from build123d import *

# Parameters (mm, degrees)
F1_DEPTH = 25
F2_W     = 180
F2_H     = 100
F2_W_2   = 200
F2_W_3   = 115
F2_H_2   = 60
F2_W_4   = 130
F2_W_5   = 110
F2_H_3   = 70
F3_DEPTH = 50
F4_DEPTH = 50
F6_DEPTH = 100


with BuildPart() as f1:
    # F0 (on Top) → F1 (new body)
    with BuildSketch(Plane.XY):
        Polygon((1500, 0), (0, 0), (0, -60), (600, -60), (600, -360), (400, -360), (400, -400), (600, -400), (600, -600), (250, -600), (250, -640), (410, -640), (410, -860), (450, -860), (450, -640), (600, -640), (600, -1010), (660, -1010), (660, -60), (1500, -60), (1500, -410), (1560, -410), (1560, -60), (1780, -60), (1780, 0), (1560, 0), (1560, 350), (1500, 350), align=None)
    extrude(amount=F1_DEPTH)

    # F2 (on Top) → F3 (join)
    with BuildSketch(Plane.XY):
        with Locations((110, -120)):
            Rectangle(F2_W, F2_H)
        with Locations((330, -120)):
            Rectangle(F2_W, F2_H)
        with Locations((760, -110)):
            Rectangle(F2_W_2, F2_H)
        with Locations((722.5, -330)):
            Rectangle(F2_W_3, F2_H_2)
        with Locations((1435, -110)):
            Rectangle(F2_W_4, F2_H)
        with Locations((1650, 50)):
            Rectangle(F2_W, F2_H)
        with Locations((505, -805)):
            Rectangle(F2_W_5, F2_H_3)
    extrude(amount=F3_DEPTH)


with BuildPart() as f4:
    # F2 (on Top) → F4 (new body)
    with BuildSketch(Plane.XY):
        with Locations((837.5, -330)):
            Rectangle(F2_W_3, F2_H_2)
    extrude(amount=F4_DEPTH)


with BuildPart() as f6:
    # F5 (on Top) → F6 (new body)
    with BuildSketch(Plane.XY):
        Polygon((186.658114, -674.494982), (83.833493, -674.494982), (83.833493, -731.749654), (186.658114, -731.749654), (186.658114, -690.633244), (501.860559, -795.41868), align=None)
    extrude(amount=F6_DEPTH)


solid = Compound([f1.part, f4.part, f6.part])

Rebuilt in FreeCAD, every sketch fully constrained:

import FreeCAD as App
import Part
import Sketcher

V = App.Vector
Q = App.Units.Quantity

doc = App.newDocument("Part")
body = doc.addObject("PartDesign::Body", "Body")
body.AllowCompound = True

# Sketch on XY plane
sketch1 = body.newObject("Sketcher::SketchObject", "Sketch")
sketch1.AttachmentSupport = (doc.getObject("XY_Plane"), [""])
sketch1.MapMode = "FlatFace"
sketch1.addGeometry([
    Part.LineSegment(V(1500, 0, 0), V(0, 0, 0)),  # 0
    Part.LineSegment(V(0, 0, 0), V(0, -60, 0)),  # 1
    Part.LineSegment(V(0, -60, 0), V(600, -60, 0)),  # 2
    Part.LineSegment(V(600, -60, 0), V(600, -360, 0)),  # 3
    Part.LineSegment(V(600, -360, 0), V(400, -360, 0)),  # 4
    Part.LineSegment(V(400, -360, 0), V(400, -400, 0)),  # 5
    Part.LineSegment(V(400, -400, 0), V(600, -400, 0)),  # 6
    Part.LineSegment(V(600, -400, 0), V(600, -600, 0)),  # 7
    Part.LineSegment(V(600, -600, 0), V(250, -600, 0)),  # 8
    Part.LineSegment(V(250, -600, 0), V(250, -640, 0)),  # 9
    Part.LineSegment(V(250, -640, 0), V(410, -640, 0)),  # 10
    Part.LineSegment(V(410, -640, 0), V(410, -860, 0)),  # 11
    Part.LineSegment(V(410, -860, 0), V(450, -860, 0)),  # 12
    Part.LineSegment(V(450, -860, 0), V(450, -640, 0)),  # 13
    Part.LineSegment(V(450, -640, 0), V(600, -640, 0)),  # 14
    Part.LineSegment(V(600, -640, 0), V(600, -1010, 0)),  # 15
    Part.LineSegment(V(600, -1010, 0), V(660, -1010, 0)),  # 16
    Part.LineSegment(V(660, -1010, 0), V(660, -60, 0)),  # 17
    Part.LineSegment(V(660, -60, 0), V(1500, -60, 0)),  # 18
    Part.LineSegment(V(1500, -60, 0), V(1500, -410, 0)),  # 19
    Part.LineSegment(V(1500, -410, 0), V(1560, -410, 0)),  # 20
    Part.LineSegment(V(1560, -410, 0), V(1560, -60, 0)),  # 21
    Part.LineSegment(V(1560, -60, 0), V(1780, -60, 0)),  # 22
    Part.LineSegment(V(1780, -60, 0), V(1780, 0, 0)),  # 23
    Part.LineSegment(V(1780, 0, 0), V(1560, 0, 0)),  # 24
    Part.LineSegment(V(1560, 0, 0), V(1560, 350, 0)),  # 25
    Part.LineSegment(V(1560, 350, 0), V(1500, 350, 0)),  # 26
    Part.LineSegment(V(1500, 350, 0), V(1500, 0, 0)),  # 27
], False)
sketch1.addConstraint([
    Sketcher.Constraint("Coincident", 0, 2, 1, 1),
    Sketcher.Constraint("Coincident", 1, 2, 2, 1),
    Sketcher.Constraint("Coincident", 2, 2, 3, 1),
    Sketcher.Constraint("Coincident", 3, 2, 4, 1),
    Sketcher.Constraint("Coincident", 4, 2, 5, 1),
    Sketcher.Constraint("Coincident", 5, 2, 6, 1),
    Sketcher.Constraint("Coincident", 6, 2, 7, 1),
    Sketcher.Constraint("Coincident", 7, 2, 8, 1),
    Sketcher.Constraint("Coincident", 8, 2, 9, 1),
    Sketcher.Constraint("Coincident", 9, 2, 10, 1),
    Sketcher.Constraint("Coincident", 10, 2, 11, 1),
    Sketcher.Constraint("Coincident", 11, 2, 12, 1),
    Sketcher.Constraint("Coincident", 12, 2, 13, 1),
    Sketcher.Constraint("Coincident", 13, 2, 14, 1),
    Sketcher.Constraint("Coincident", 14, 2, 15, 1),
    Sketcher.Constraint("Coincident", 15, 2, 16, 1),
    Sketcher.Constraint("Coincident", 16, 2, 17, 1),
    Sketcher.Constraint("Coincident", 17, 2, 18, 1),
    Sketcher.Constraint("Coincident", 18, 2, 19, 1),
    Sketcher.Constraint("Coincident", 19, 2, 20, 1),
    Sketcher.Constraint("Coincident", 20, 2, 21, 1),
    Sketcher.Constraint("Coincident", 21, 2, 22, 1),
    Sketcher.Constraint("Coincident", 22, 2, 23, 1),
    Sketcher.Constraint("Coincident", 23, 2, 24, 1),
    Sketcher.Constraint("Coincident", 24, 2, 25, 1),
    Sketcher.Constraint("Coincident", 25, 2, 26, 1),
    Sketcher.Constraint("Coincident", 26, 2, 27, 1),
    Sketcher.Constraint("Coincident", 27, 2, 0, 1),
    Sketcher.Constraint("Horizontal", 0),
    Sketcher.Constraint("Vertical", 1),
    Sketcher.Constraint("Horizontal", 2),
    Sketcher.Constraint("Vertical", 3),
    Sketcher.Constraint("Horizontal", 4),
    Sketcher.Constraint("Vertical", 5),
    Sketcher.Constraint("Horizontal", 6),
    Sketcher.Constraint("Vertical", 7),
    Sketcher.Constraint("Horizontal", 8),
    Sketcher.Constraint("Vertical", 9),
    Sketcher.Constraint("Horizontal", 10),
    Sketcher.Constraint("Vertical", 11),
    Sketcher.Constraint("Horizontal", 12),
    Sketcher.Constraint("Vertical", 13),
    Sketcher.Constraint("Horizontal", 14),
    Sketcher.Constraint("Vertical", 15),
    Sketcher.Constraint("Horizontal", 16),
    Sketcher.Constraint("Vertical", 17),
    Sketcher.Constraint("Horizontal", 18),
    Sketcher.Constraint("Vertical", 19),
    Sketcher.Constraint("Horizontal", 20),
    Sketcher.Constraint("Vertical", 21),
    Sketcher.Constraint("Horizontal", 22),
    Sketcher.Constraint("Vertical", 23),
    Sketcher.Constraint("Horizontal", 24),
    Sketcher.Constraint("Vertical", 25),
    Sketcher.Constraint("Horizontal", 26),
    Sketcher.Constraint("Vertical", 27),
    Sketcher.Constraint("Coincident", 0, 2, -1, 1),
    Sketcher.Constraint("PointOnObject", 23, 2, -1),
    Sketcher.Constraint("Horizontal", 10, 2, 13, 2),
    Sketcher.Constraint("Horizontal", 2, 2, 17, 2),
    Sketcher.Constraint("Horizontal", 18, 2, 21, 2),
    Sketcher.Constraint("Vertical", 3, 2, 6, 2),
    Sketcher.Constraint("Vertical", 7, 2, 14, 2),
    Sketcher.Constraint("Vertical", 21, 2, 24, 2),
    Sketcher.Constraint("Vertical", 19, 2, 26, 2),
    Sketcher.Constraint("Equal", 16, 20),
    Sketcher.Constraint("Equal", 26, 1),
    Sketcher.Constraint("Equal", 12, 5),
    Sketcher.Constraint("Equal", 6, 7),
    Sketcher.Constraint("Equal", 5, 9),
    Sketcher.Constraint("Equal", 24, 11),
    Sketcher.Constraint("Equal", 8, 19),
    Sketcher.Constraint("Equal", 21, 25),
    Sketcher.Constraint("DistanceX", 0, 2, 0, 1, Q("1500 mm")),
    Sketcher.Constraint("DistanceX", 2, 1, 2, 2, Q("600 mm")),
    Sketcher.Constraint("DistanceX", 4, 2, 4, 1, Q("200 mm")),
    Sketcher.Constraint("DistanceX", 8, 2, 8, 1, Q("350 mm")),
    Sketcher.Constraint("DistanceX", 10, 1, 10, 2, Q("160 mm")),
    Sketcher.Constraint("DistanceX", 12, 1, 12, 2, Q("40 mm")),
    Sketcher.Constraint("DistanceX", 16, 1, 16, 2, Q("60 mm")),
    Sketcher.Constraint("DistanceX", 22, 1, 22, 2, Q("220 mm")),
    Sketcher.Constraint("DistanceY", 3, 2, 3, 1, Q("300 mm")),
    Sketcher.Constraint("DistanceY", 15, 2, 15, 1, Q("370 mm")),
])
pad1 = body.newObject("PartDesign::Pad", "Pad")
pad1.Profile = sketch1
pad1.Length = 25

# Sketch on XY plane
sketch2 = body.newObject("Sketcher::SketchObject", "Sketch001")
sketch2.AttachmentSupport = (doc.getObject("XY_Plane"), [""])
sketch2.MapMode = "FlatFace"
sketch2.addGeometry([
    Part.LineSegment(V(20, -70, 0), V(20, -170, 0)),  # 0
    Part.LineSegment(V(20, -170, 0), V(200, -170, 0)),  # 1
    Part.LineSegment(V(200, -170, 0), V(200, -70, 0)),  # 2
    Part.LineSegment(V(200, -70, 0), V(20, -70, 0)),  # 3
    Part.LineSegment(V(240, -70, 0), V(240, -170, 0)),  # 4
    Part.LineSegment(V(240, -170, 0), V(420, -170, 0)),  # 5
    Part.LineSegment(V(420, -170, 0), V(420, -70, 0)),  # 6
    Part.LineSegment(V(420, -70, 0), V(240, -70, 0)),  # 7
    Part.LineSegment(V(660, -60, 0), V(660, -160, 0)),  # 8
    Part.LineSegment(V(660, -160, 0), V(860, -160, 0)),  # 9
    Part.LineSegment(V(860, -160, 0), V(860, -60, 0)),  # 10
    Part.LineSegment(V(860, -60, 0), V(660, -60, 0)),  # 11
    Part.LineSegment(V(665, -300, 0), V(665, -360, 0)),  # 12
    Part.LineSegment(V(665, -360, 0), V(780, -360, 0)),  # 13
    Part.LineSegment(V(780, -360, 0), V(780, -300, 0)),  # 14
    Part.LineSegment(V(780, -300, 0), V(665, -300, 0)),  # 15
    Part.LineSegment(V(1370, -60, 0), V(1370, -160, 0)),  # 16
    Part.LineSegment(V(1370, -160, 0), V(1500, -160, 0)),  # 17
    Part.LineSegment(V(1500, -160, 0), V(1500, -60, 0)),  # 18
    Part.LineSegment(V(1500, -60, 0), V(1370, -60, 0)),  # 19
    Part.LineSegment(V(1560, 100, 0), V(1560, 0, 0)),  # 20
    Part.LineSegment(V(1560, 0, 0), V(1740, 0, 0)),  # 21
    Part.LineSegment(V(1740, 0, 0), V(1740, 100, 0)),  # 22
    Part.LineSegment(V(1740, 100, 0), V(1560, 100, 0)),  # 23
    Part.LineSegment(V(450, -770, 0), V(450, -840, 0)),  # 24
    Part.LineSegment(V(450, -840, 0), V(560, -840, 0)),  # 25
    Part.LineSegment(V(560, -840, 0), V(560, -770, 0)),  # 26
    Part.LineSegment(V(560, -770, 0), V(450, -770, 0)),  # 27
], False)
sketch2.addConstraint([
    Sketcher.Constraint("Coincident", 0, 2, 1, 1),
    Sketcher.Constraint("Coincident", 1, 2, 2, 1),
    Sketcher.Constraint("Coincident", 2, 2, 3, 1),
    Sketcher.Constraint("Coincident", 3, 2, 0, 1),
    Sketcher.Constraint("Coincident", 4, 2, 5, 1),
    Sketcher.Constraint("Coincident", 5, 2, 6, 1),
    Sketcher.Constraint("Coincident", 6, 2, 7, 1),
    Sketcher.Constraint("Coincident", 7, 2, 4, 1),
    Sketcher.Constraint("Coincident", 8, 2, 9, 1),
    Sketcher.Constraint("Coincident", 9, 2, 10, 1),
    Sketcher.Constraint("Coincident", 10, 2, 11, 1),
    Sketcher.Constraint("Coincident", 11, 2, 8, 1),
    Sketcher.Constraint("Coincident", 12, 2, 13, 1),
    Sketcher.Constraint("Coincident", 13, 2, 14, 1),
    Sketcher.Constraint("Coincident", 14, 2, 15, 1),
    Sketcher.Constraint("Coincident", 15, 2, 12, 1),
    Sketcher.Constraint("Coincident", 16, 2, 17, 1),
    Sketcher.Constraint("Coincident", 17, 2, 18, 1),
    Sketcher.Constraint("Coincident", 18, 2, 19, 1),
    Sketcher.Constraint("Coincident", 19, 2, 16, 1),
    Sketcher.Constraint("Coincident", 20, 2, 21, 1),
    Sketcher.Constraint("Coincident", 21, 2, 22, 1),
    Sketcher.Constraint("Coincident", 22, 2, 23, 1),
    Sketcher.Constraint("Coincident", 23, 2, 20, 1),
    Sketcher.Constraint("Coincident", 24, 2, 25, 1),
    Sketcher.Constraint("Coincident", 25, 2, 26, 1),
    Sketcher.Constraint("Coincident", 26, 2, 27, 1),
    Sketcher.Constraint("Coincident", 27, 2, 24, 1),
    Sketcher.Constraint("Vertical", 0),
    Sketcher.Constraint("Horizontal", 1),
    Sketcher.Constraint("Vertical", 2),
    Sketcher.Constraint("Horizontal", 3),
    Sketcher.Constraint("Vertical", 4),
    Sketcher.Constraint("Horizontal", 5),
    Sketcher.Constraint("Vertical", 6),
    Sketcher.Constraint("Horizontal", 7),
    Sketcher.Constraint("Vertical", 8),
    Sketcher.Constraint("Horizontal", 9),
    Sketcher.Constraint("Vertical", 10),
    Sketcher.Constraint("Horizontal", 11),
    Sketcher.Constraint("Vertical", 12),
    Sketcher.Constraint("Horizontal", 13),
    Sketcher.Constraint("Vertical", 14),
    Sketcher.Constraint("Horizontal", 15),
    Sketcher.Constraint("Vertical", 16),
    Sketcher.Constraint("Horizontal", 17),
    Sketcher.Constraint("Vertical", 18),
    Sketcher.Constraint("Horizontal", 19),
    Sketcher.Constraint("Vertical", 20),
    Sketcher.Constraint("Horizontal", 21),
    Sketcher.Constraint("Vertical", 22),
    Sketcher.Constraint("Horizontal", 23),
    Sketcher.Constraint("Vertical", 24),
    Sketcher.Constraint("Horizontal", 25),
    Sketcher.Constraint("Vertical", 26),
    Sketcher.Constraint("Horizontal", 27),
    Sketcher.Constraint("PointOnObject", 20, 2, -1),
    Sketcher.Constraint("Horizontal", 1, 2, 4, 2),
    Sketcher.Constraint("Horizontal", 3, 2, 6, 2),
    Sketcher.Constraint("Horizontal", 9, 2, 16, 2),
    Sketcher.Constraint("Horizontal", 11, 2, 18, 2),
    Sketcher.Constraint("Equal", 3, 5),
    Sketcher.Constraint("Equal", 7, 21),
    Sketcher.Constraint("Equal", 6, 8),
    Sketcher.Constraint("Equal", 18, 20),
    Sketcher.Constraint("DistanceX", 1, 1, 1, 2, Q("180 mm")),
    Sketcher.Constraint("DistanceX", 9, 1, 9, 2, Q("200 mm")),
    Sketcher.Constraint("DistanceX", 13, 1, 13, 2, Q("115 mm")),
    Sketcher.Constraint("DistanceX", 17, 1, 17, 2, Q("130 mm")),
    Sketcher.Constraint("DistanceX", 25, 1, 25, 2, Q("110 mm")),
    Sketcher.Constraint("DistanceY", 0, 2, 0, 1, Q("100 mm")),
    Sketcher.Constraint("DistanceY", 12, 2, 12, 1, Q("60 mm")),
    Sketcher.Constraint("DistanceY", 24, 2, 24, 1, Q("70 mm")),
    Sketcher.Constraint("DistanceX", -1, 1, 0, 2, Q("20 mm")),
    Sketcher.Constraint("DistanceY", 0, 2, -1, 1, Q("170 mm")),
    Sketcher.Constraint("DistanceX", -1, 1, 4, 2, Q("240 mm")),
    Sketcher.Constraint("DistanceX", -1, 1, 8, 2, Q("660 mm")),
    Sketcher.Constraint("DistanceY", 8, 2, -1, 1, Q("160 mm")),
    Sketcher.Constraint("DistanceX", -1, 1, 12, 2, Q("665 mm")),
    Sketcher.Constraint("DistanceY", 12, 2, -1, 1, Q("360 mm")),
    Sketcher.Constraint("DistanceX", -1, 1, 16, 2, Q("1370 mm")),
    Sketcher.Constraint("DistanceX", -1, 1, 20, 2, Q("1560 mm")),
    Sketcher.Constraint("DistanceX", -1, 1, 24, 2, Q("450 mm")),
    Sketcher.Constraint("DistanceY", 24, 2, -1, 1, Q("840 mm")),
])
pad2 = body.newObject("PartDesign::Pad", "Pad001")
pad2.Profile = sketch2
pad2.Length = 50
body2 = doc.addObject("PartDesign::Body", "Body001")

# Sketch on XY plane
sketch3 = body2.newObject("Sketcher::SketchObject", "Sketch002")
sketch3.AttachmentSupport = (doc.getObject("XY_Plane001"), [""])
sketch3.MapMode = "FlatFace"
sketch3.addGeometry([
    Part.LineSegment(V(780, -300, 0), V(780, -360, 0)),
    Part.LineSegment(V(780, -360, 0), V(895, -360, 0)),
    Part.LineSegment(V(895, -360, 0), V(895, -300, 0)),
    Part.LineSegment(V(895, -300, 0), V(780, -300, 0)),
], False)
sketch3.addConstraint([
    Sketcher.Constraint("Coincident", 0, 2, 1, 1),
    Sketcher.Constraint("Coincident", 1, 2, 2, 1),
    Sketcher.Constraint("Coincident", 2, 2, 3, 1),
    Sketcher.Constraint("Coincident", 3, 2, 0, 1),
    Sketcher.Constraint("Vertical", 0),
    Sketcher.Constraint("Horizontal", 1),
    Sketcher.Constraint("Vertical", 2),
    Sketcher.Constraint("Horizontal", 3),
    Sketcher.Constraint("DistanceX", 1, 1, 1, 2, Q("115 mm")),
    Sketcher.Constraint("DistanceY", 0, 2, 0, 1, Q("60 mm")),
    Sketcher.Constraint("DistanceX", -1, 1, 0, 2, Q("780 mm")),
    Sketcher.Constraint("DistanceY", 0, 2, -1, 1, Q("360 mm")),
])
pad3 = body2.newObject("PartDesign::Pad", "Pad002")
pad3.Profile = sketch3
pad3.Length = 50
body3 = doc.addObject("PartDesign::Body", "Body002")

# Sketch on XY plane
sketch4 = body3.newObject("Sketcher::SketchObject", "Sketch003")
sketch4.AttachmentSupport = (doc.getObject("XY_Plane002"), [""])
sketch4.MapMode = "FlatFace"
sketch4.addGeometry([
    Part.LineSegment(V(187, -674, 0), V(84, -674, 0)),  # 0
    Part.LineSegment(V(84, -674, 0), V(84, -732, 0)),  # 1
    Part.LineSegment(V(84, -732, 0), V(187, -732, 0)),  # 2
    Part.LineSegment(V(187, -732, 0), V(187, -691, 0)),  # 3
    Part.LineSegment(V(187, -691, 0), V(502, -795, 0)),  # 4
    Part.LineSegment(V(502, -795, 0), V(187, -674, 0)),  # 5
], False)
sketch4.addConstraint([
    Sketcher.Constraint("Coincident", 0, 2, 1, 1),
    Sketcher.Constraint("Coincident", 1, 2, 2, 1),
    Sketcher.Constraint("Coincident", 2, 2, 3, 1),
    Sketcher.Constraint("Coincident", 3, 2, 4, 1),
    Sketcher.Constraint("Coincident", 4, 2, 5, 1),
    Sketcher.Constraint("Coincident", 5, 2, 0, 1),
    Sketcher.Constraint("Horizontal", 0),
    Sketcher.Constraint("Vertical", 1),
    Sketcher.Constraint("Horizontal", 2),
    Sketcher.Constraint("Vertical", 3),
    Sketcher.Constraint("Vertical", 3, 2, 5, 2),
    Sketcher.Constraint("DistanceX", 0, 2, 0, 1, Q("102.824621 mm")),
    Sketcher.Constraint("DistanceY", 1, 2, 1, 1, Q("57.254672 mm")),
    Sketcher.Constraint("DistanceY", 3, 1, 3, 2, Q("41.11641 mm")),
    Sketcher.Constraint("DistanceY", 0, 2, -1, 1, Q("674.494982 mm")),
    Sketcher.Constraint("DistanceX", -1, 1, 4, 2, Q("501.860559 mm")),
    Sketcher.Constraint("DistanceY", 4, 2, -1, 1, Q("795.41868 mm")),
    Sketcher.Constraint("Distance", 4, Q("332.163467 mm")),
])
pad4 = body3.newObject("PartDesign::Pad", "Pad003")
pad4.Profile = sketch4
pad4.Length = 100

doc.recompute()
